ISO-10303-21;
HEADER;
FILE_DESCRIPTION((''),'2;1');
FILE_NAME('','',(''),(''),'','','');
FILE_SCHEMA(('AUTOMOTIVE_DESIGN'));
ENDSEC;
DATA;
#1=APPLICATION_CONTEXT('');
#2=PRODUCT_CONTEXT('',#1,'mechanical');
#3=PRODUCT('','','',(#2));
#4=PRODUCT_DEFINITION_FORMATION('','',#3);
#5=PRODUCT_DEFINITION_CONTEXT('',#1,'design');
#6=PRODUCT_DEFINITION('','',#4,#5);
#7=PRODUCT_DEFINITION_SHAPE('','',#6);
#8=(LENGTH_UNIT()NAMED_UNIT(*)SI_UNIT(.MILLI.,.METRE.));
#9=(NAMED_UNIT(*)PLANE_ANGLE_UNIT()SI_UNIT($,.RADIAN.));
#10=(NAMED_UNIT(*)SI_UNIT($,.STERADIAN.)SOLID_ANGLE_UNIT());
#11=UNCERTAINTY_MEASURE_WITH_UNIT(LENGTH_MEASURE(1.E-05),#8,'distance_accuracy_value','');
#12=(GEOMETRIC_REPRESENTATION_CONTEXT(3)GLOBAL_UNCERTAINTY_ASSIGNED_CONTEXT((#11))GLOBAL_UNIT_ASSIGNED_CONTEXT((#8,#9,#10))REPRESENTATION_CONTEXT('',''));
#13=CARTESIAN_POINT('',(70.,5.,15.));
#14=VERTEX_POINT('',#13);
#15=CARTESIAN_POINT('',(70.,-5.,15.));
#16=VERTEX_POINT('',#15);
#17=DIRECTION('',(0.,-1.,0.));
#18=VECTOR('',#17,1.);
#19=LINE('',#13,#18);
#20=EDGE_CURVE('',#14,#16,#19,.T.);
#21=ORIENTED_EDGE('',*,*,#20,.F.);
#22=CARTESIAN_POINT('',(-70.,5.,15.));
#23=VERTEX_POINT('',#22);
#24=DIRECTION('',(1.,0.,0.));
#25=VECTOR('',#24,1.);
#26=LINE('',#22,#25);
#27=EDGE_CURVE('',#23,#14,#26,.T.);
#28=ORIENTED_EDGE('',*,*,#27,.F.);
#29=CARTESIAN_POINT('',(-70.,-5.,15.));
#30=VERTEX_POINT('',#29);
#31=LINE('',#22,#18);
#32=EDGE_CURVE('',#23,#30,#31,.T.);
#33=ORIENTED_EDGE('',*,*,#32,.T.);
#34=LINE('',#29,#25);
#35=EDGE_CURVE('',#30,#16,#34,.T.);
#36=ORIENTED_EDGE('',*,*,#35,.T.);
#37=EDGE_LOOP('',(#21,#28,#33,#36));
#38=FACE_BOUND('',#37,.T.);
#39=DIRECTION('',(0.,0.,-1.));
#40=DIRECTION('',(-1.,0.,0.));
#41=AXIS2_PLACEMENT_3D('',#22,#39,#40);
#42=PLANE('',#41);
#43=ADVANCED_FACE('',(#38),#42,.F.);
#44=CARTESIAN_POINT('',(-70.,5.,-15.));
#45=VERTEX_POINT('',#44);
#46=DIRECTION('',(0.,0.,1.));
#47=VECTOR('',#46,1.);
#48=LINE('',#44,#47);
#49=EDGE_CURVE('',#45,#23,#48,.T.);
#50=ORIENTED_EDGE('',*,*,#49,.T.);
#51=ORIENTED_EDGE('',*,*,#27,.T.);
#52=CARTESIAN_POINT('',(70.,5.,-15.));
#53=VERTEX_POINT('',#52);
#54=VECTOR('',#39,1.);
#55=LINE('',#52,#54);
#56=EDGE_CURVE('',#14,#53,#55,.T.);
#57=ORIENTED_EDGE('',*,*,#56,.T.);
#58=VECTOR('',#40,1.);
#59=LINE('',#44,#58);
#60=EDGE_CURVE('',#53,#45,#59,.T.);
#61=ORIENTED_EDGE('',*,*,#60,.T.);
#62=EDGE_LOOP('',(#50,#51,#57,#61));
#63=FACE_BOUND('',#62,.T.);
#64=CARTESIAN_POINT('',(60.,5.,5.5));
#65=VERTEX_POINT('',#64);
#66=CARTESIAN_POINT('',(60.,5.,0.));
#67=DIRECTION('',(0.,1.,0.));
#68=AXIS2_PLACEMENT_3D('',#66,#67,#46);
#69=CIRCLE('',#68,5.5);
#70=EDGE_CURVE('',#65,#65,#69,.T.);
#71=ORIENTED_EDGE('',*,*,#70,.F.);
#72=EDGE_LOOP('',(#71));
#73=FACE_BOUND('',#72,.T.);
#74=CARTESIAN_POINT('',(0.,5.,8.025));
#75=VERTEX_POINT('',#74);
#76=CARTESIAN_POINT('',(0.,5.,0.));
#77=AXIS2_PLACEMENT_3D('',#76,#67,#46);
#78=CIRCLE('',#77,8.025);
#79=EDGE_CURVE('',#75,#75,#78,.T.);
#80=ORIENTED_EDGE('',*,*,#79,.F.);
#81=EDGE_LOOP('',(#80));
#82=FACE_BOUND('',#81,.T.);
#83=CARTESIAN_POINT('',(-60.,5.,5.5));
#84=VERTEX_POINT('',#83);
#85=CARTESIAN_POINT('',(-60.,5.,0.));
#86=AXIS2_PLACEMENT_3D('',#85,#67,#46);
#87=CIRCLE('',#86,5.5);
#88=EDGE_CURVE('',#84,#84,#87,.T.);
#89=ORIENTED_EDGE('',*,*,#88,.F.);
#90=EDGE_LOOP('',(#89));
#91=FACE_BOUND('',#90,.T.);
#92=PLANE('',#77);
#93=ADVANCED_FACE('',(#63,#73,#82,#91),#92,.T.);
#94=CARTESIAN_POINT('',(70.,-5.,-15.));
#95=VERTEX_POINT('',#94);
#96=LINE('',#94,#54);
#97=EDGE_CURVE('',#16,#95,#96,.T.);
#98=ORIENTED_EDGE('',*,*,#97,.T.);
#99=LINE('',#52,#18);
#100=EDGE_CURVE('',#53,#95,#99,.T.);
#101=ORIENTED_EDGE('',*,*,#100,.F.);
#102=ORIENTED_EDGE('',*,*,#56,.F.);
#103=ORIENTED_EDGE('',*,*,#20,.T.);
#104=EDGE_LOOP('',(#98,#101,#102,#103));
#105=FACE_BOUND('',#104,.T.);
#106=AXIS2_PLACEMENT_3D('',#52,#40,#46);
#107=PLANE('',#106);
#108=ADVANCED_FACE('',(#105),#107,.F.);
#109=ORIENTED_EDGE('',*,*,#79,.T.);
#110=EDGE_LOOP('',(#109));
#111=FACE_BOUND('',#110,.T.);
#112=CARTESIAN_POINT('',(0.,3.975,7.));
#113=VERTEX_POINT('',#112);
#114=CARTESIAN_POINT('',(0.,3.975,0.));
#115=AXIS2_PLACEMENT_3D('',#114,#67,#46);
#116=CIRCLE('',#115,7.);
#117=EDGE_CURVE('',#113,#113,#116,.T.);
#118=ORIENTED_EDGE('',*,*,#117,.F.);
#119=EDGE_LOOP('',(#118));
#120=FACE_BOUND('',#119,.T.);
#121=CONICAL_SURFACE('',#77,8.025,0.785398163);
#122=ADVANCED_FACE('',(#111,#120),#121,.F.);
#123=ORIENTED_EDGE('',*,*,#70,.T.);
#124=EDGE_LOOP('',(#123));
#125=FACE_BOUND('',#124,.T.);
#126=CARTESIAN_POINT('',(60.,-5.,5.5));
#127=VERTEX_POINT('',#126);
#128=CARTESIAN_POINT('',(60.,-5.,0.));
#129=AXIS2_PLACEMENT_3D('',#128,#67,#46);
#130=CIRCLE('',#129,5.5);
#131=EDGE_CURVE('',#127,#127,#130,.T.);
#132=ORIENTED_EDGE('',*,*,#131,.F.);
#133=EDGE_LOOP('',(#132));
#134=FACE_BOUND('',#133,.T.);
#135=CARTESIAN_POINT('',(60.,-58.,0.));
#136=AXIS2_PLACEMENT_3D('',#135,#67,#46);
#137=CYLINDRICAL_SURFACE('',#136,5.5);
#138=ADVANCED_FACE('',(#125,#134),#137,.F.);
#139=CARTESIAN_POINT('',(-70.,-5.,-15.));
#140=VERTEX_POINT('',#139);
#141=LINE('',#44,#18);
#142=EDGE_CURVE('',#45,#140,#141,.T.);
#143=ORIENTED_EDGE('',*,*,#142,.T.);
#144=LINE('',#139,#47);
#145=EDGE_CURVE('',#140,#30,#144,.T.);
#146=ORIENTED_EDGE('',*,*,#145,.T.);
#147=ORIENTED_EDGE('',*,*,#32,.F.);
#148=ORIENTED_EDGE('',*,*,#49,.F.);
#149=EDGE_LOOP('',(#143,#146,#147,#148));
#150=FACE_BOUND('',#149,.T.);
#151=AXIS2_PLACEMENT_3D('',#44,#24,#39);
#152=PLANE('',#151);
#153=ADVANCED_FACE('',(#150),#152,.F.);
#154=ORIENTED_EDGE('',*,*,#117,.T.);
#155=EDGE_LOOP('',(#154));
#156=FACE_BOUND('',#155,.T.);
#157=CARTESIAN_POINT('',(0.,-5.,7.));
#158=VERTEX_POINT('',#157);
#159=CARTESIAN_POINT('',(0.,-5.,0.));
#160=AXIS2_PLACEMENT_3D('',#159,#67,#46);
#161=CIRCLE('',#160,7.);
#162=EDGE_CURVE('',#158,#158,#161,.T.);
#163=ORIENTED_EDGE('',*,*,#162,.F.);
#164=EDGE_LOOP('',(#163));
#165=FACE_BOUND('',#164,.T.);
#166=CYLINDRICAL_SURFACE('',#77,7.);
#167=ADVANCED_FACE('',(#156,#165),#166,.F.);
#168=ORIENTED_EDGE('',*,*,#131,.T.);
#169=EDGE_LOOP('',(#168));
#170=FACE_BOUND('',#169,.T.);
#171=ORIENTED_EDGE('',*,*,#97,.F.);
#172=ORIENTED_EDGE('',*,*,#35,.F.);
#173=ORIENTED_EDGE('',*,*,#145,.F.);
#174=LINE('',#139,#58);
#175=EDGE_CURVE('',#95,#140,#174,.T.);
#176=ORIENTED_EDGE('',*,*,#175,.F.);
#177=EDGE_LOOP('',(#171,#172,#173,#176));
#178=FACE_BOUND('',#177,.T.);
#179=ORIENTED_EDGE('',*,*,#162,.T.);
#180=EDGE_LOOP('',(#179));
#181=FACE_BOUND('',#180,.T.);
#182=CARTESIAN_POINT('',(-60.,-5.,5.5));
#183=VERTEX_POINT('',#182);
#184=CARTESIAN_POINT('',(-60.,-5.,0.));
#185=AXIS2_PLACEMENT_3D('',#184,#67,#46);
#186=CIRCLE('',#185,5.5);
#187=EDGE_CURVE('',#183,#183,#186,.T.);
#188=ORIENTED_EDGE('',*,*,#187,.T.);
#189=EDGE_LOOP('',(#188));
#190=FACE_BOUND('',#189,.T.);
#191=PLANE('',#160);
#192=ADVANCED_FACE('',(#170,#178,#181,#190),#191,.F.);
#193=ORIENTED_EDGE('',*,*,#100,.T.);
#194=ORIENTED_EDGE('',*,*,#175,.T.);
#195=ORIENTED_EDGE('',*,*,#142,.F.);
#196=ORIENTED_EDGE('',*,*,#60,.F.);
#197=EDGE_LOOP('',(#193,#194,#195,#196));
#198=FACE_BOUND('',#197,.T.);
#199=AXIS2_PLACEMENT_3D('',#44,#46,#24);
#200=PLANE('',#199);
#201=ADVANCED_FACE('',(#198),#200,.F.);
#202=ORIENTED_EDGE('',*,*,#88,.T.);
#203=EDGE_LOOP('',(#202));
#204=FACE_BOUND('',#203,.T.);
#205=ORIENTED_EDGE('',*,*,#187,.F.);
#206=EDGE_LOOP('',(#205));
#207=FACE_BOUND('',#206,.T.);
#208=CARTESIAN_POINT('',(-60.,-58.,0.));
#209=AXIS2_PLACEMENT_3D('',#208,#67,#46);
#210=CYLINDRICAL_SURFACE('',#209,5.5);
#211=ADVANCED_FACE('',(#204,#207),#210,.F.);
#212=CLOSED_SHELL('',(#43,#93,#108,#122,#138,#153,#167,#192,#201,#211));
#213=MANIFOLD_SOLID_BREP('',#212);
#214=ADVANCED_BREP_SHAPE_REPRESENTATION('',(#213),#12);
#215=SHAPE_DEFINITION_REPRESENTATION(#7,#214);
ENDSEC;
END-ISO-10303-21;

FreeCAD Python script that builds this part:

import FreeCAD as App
import Part
import Sketcher


def add_polygon(sketch, points):
    """Adds a closed chain of lines whose ends are joined by coincident constraints."""
    first, n = sketch.GeometryCount, len(points)
    for a, b in zip(points, points[1:] + points[:1]):
        sketch.addGeometry(Part.LineSegment(App.Vector(*a, 0), App.Vector(*b, 0)), False)
    for i in range(n):
        sketch.addConstraint(Sketcher.Constraint("Coincident", first + i, 2, first + (i + 1) % n, 1))

doc = App.newDocument("Part")
body = doc.addObject("PartDesign::Body", "Body")

sketch1 = doc.addObject("Sketcher::SketchObject", "Sketch")
body.addObject(sketch1)
sketch1.AttachmentSupport = (doc.XZ_Plane, [""])
sketch1.MapMode = "FlatFace"
add_polygon(sketch1, [(-70, -15), (-70, 15), (70, 15), (70, -15)])
sketch1.addConstraint([
    Sketcher.Constraint("Vertical", 0),
    Sketcher.Constraint("Horizontal", 1),
    Sketcher.Constraint("Vertical", 2),
    Sketcher.Constraint("Horizontal", 3),
    Sketcher.Constraint("Symmetric", 0, 2, 2, 2, -1, 1),
    Sketcher.Constraint("DistanceX", 1, 1, 1, 2, 140.0),
    Sketcher.Constraint("DistanceY", 0, 1, 0, 2, 30.0),
])
pad1 = doc.addObject("PartDesign::Pad", "Pad")
body.addObject(pad1)
pad1.Profile = sketch1
pad1.Length = 10
pad1.Midplane = True

sketch2 = doc.addObject("Sketcher::SketchObject", "Sketch001")
body.addObject(sketch2)
sketch2.AttachmentSupport = (doc.XZ_Plane, [""])
sketch2.MapMode = "FlatFace"
sketch2.AttachmentOffset = App.Placement(App.Vector(0, 0, -5), App.Rotation())
sketch2.addGeometry([
    Part.Circle(App.Vector(-60, 0, 0), App.Vector(0, 0, 1), 5.5),
    Part.Circle(App.Vector(60, 0, 0), App.Vector(0, 0, 1), 5.5),
], False)
sketch2.addConstraint([
    Sketcher.Constraint("Equal", 0, 1),
    Sketcher.Constraint("Symmetric", 0, 3, 1, 3, -1, 1),
    Sketcher.Constraint("PointOnObject", 0, 3, -1),
    Sketcher.Constraint("Diameter", 0, 11.0),
    Sketcher.Constraint("DistanceX", 0, 3, -1, 1, 60.0),
])
pocket1 = doc.addObject("PartDesign::Pocket", "Pocket")
body.addObject(pocket1)
pocket1.Profile = sketch2
pocket1.Length = 63
pocket1.Reversed = True

sketch3 = doc.addObject("Sketcher::SketchObject", "Sketch002")
body.addObject(sketch3)
sketch3.AttachmentSupport = (doc.XZ_Plane, [""])
sketch3.MapMode = "FlatFace"
sketch3.AttachmentOffset = App.Placement(App.Vector(0, 0, -5), App.Rotation())
sketch3.addGeometry(Part.Circle(App.Vector(0, 0, 0), App.Vector(0, 0, 1), 7), False)
sketch3.addConstraint([
    Sketcher.Constraint("Coincident", 0, 3, -1, 1),
    Sketcher.Constraint("Diameter", 0, 14.0),
])
doc.recompute()
hole = doc.addObject("PartDesign::Hole", "Hole")
body.addObject(hole)
hole.Profile = sketch3
hole.ThreadType = "None"
hole.Diameter = 14
hole.DepthType = "Dimension"
hole.Depth = 38
hole.DrillPoint = "Angled"
hole.DrillPointAngle = 118
hole.HoleCutType = "Countersink"
hole.HoleCutDiameter = 16.05
hole.HoleCutCountersinkAngle = 90
hole.Reversed = True

doc.recompute()
